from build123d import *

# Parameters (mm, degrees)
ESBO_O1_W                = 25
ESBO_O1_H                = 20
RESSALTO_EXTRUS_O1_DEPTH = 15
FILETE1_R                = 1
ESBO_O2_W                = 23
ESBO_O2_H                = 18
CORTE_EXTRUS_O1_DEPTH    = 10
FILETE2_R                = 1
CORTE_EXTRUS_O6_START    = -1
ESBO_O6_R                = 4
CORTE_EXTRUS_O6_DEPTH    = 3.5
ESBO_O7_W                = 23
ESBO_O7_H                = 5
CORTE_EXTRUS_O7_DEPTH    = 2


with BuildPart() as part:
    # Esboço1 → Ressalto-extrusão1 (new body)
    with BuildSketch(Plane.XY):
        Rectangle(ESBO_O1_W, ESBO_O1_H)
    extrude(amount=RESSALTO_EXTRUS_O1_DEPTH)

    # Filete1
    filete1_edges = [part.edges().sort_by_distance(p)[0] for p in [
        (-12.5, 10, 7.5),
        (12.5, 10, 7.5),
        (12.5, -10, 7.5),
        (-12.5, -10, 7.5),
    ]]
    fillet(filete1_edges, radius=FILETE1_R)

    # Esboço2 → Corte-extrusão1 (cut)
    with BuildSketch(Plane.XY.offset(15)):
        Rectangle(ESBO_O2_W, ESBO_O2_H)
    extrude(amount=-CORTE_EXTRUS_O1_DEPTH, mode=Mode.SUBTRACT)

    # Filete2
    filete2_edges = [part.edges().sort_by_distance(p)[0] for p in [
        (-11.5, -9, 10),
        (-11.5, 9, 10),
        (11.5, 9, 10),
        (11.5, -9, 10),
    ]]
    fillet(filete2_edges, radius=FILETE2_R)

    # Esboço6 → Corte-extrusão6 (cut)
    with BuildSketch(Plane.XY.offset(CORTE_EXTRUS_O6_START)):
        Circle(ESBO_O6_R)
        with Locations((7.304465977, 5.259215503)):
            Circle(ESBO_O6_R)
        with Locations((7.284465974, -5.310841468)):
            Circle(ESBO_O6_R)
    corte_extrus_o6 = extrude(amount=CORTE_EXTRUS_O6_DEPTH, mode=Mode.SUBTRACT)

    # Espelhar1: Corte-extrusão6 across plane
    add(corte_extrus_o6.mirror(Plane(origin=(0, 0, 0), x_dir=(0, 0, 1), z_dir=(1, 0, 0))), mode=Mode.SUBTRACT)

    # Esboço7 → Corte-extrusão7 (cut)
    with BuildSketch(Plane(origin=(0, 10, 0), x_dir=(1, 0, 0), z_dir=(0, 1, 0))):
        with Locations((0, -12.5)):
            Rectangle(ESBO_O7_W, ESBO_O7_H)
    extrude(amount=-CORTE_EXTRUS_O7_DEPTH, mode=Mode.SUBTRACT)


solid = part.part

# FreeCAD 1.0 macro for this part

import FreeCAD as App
import Part
import Sketcher

V = App.Vector
Q = App.Units.Quantity


def edges_at(feature, points):
    """Names of the edges that pass closest to the given points."""
    edges = feature.Shape.Edges
    near = lambda p: min(range(len(edges)), key=lambda i: edges[i].distToShape(Part.Vertex(*p))[0])
    return sorted({f"Edge{near(p) + 1}" for p in points})

doc = App.newDocument("Part")
body = doc.addObject("PartDesign::Body", "Body")

sketch1 = body.newObject("Sketcher::SketchObject", "Sketch")
sketch1.AttachmentSupport = (doc.getObject("XY_Plane"), [""])
sketch1.MapMode = "FlatFace"
sketch1.addGeometry(Part.LineSegment(V(-12, 10, 0), V(-12, -10, 0)), False)
sketch1.addGeometry(Part.LineSegment(V(-12, -10, 0), V(12, -10, 0)), False)
sketch1.addGeometry(Part.LineSegment(V(12, -10, 0), V(12, 10, 0)), False)
sketch1.addGeometry(Part.LineSegment(V(12, 10, 0), V(-12, 10, 0)), False)
sketch1.addConstraint(Sketcher.Constraint("Coincident", 0, 2, 1, 1))
sketch1.addConstraint(Sketcher.Constraint("Coincident", 1, 2, 2, 1))
sketch1.addConstraint(Sketcher.Constraint("Coincident", 2, 2, 3, 1))
sketch1.addConstraint(Sketcher.Constraint("Coincident", 3, 2, 0, 1))
sketch1.addConstraint(Sketcher.Constraint("Vertical", 0))
sketch1.addConstraint(Sketcher.Constraint("Horizontal", 1))
sketch1.addConstraint(Sketcher.Constraint("Vertical", 2))
sketch1.addConstraint(Sketcher.Constraint("Horizontal", 3))
sketch1.addConstraint(Sketcher.Constraint("Symmetric", 0, 2, 2, 2, -1, 1))
sketch1.addConstraint(Sketcher.Constraint("DistanceX", 1, 1, 1, 2, Q("25 mm")))
sketch1.addConstraint(Sketcher.Constraint("DistanceY", 0, 2, 0, 1, Q("20 mm")))
pad1 = body.newObject("PartDesign::Pad", "Pad")
pad1.Profile = sketch1
pad1.Length = 15
doc.recompute()

fillet = body.newObject("PartDesign::Fillet", "Fillet")
fillet.Base = (pad1, edges_at(pad1, [
    (-12.5, 10, 7.5),
    (12.5, 10, 7.5),
    (12.5, -10, 7.5),
    (-12.5, -10, 7.5),
]))
fillet.Radius = 1

sketch2 = body.newObject("Sketcher::SketchObject", "Sketch001")
sketch2.AttachmentSupport = (doc.getObject("XY_Plane"), [""])
sketch2.MapMode = "FlatFace"
sketch2.AttachmentOffset = App.Placement(V(0, 0, 15), App.Rotation())
sketch2.addGeometry(Part.LineSegment(V(-12, 9, 0), V(-12, -9, 0)), False)
sketch2.addGeometry(Part.LineSegment(V(-12, -9, 0), V(12, -9, 0)), False)
sketch2.addGeometry(Part.LineSegment(V(12, -9, 0), V(12, 9, 0)), False)
sketch2.addGeometry(Part.LineSegment(V(12, 9, 0), V(-12, 9, 0)), False)
sketch2.addConstraint(Sketcher.Constraint("Coincident", 0, 2, 1, 1))
sketch2.addConstraint(Sketcher.Constraint("Coincident", 1, 2, 2, 1))
sketch2.addConstraint(Sketcher.Constraint("Coincident", 2, 2, 3, 1))
sketch2.addConstraint(Sketcher.Constraint("Coincident", 3, 2, 0, 1))
sketch2.addConstraint(Sketcher.Constraint("Vertical", 0))
sketch2.addConstraint(Sketcher.Constraint("Horizontal", 1))
sketch2.addConstraint(Sketcher.Constraint("Vertical", 2))
sketch2.addConstraint(Sketcher.Constraint("Horizontal", 3))
sketch2.addConstraint(Sketcher.Constraint("Symmetric", 0, 2, 2, 2, -1, 1))
sketch2.addConstraint(Sketcher.Constraint("DistanceX", 1, 1, 1, 2, Q("23 mm")))
sketch2.addConstraint(Sketcher.Constraint("DistanceY", 0, 2, 0, 1, Q("18 mm")))
pocket1 = body.newObject("PartDesign::Pocket", "Pocket")
pocket1.Profile = sketch2
pocket1.Length = 10
doc.recompute()

fillet2 = body.newObject("PartDesign::Fillet", "Fillet001")
fillet2.Base = (pocket1, edges_at(pocket1, [
    (-11.5, -9, 10),
    (-11.5, 9, 10),
    (11.5, 9, 10),
    (11.5, -9, 10),
]))
fillet2.Radius = 1

sketch3 = body.newObject("Sketcher::SketchObject", "Sketch002")
sketch3.AttachmentSupport = (doc.getObject("XY_Plane"), [""])
sketch3.MapMode = "FlatFace"
sketch3.AttachmentOffset = App.Placement(V(0, 0, -1), App.Rotation())
sketch3.addGeometry(Part.Circle(V(0, 0, 0), V(0, 0, 1), 4), False)
sketch3.addGeometry(Part.Circle(V(7.3, 5.3, 0), V(0, 0, 1), 4), False)
sketch3.addGeometry(Part.Circle(V(7.3, -5.3, 0), V(0, 0, 1), 4), False)
sketch3.addConstraint(Sketcher.Constraint("Coincident", 0, 3, -1, 1))
sketch3.addConstraint(Sketcher.Constraint("Equal", 0, 1))
sketch3.addConstraint(Sketcher.Constraint("Equal", 1, 2))
sketch3.addConstraint(Sketcher.Constraint("Diameter", 0, Q("8 mm")))
sketch3.addConstraint(Sketcher.Constraint("DistanceX", 2, 3, 1, 3, Q("0.02 mm")))
sketch3.addConstraint(Sketcher.Constraint("DistanceY", 2, 3, -1, 1, Q("5.310841 mm")))
sketch3.addConstraint(Sketcher.Constraint("DistanceX", -1, 1, 1, 3, Q("7.304466 mm")))
sketch3.addConstraint(Sketcher.Constraint("DistanceY", -1, 1, 1, 3, Q("5.259216 mm")))
pocket2 = body.newObject("PartDesign::Pocket", "Pocket001")
pocket2.Profile = sketch3
pocket2.Length = 3.5
pocket2.Reversed = True
doc.recompute()

mirrored = body.newObject("PartDesign::Mirrored", "Mirrored")
mirrored.Originals = [pocket2]
mirrored.MirrorPlane = (doc.getObject("YZ_Plane"), [""])
body.Tip = mirrored

sketch4 = body.newObject("Sketcher::SketchObject", "Sketch003")
sketch4.AttachmentSupport = (doc.getObject("XZ_Plane"), [""])
sketch4.MapMode = "FlatFace"
sketch4.AttachmentOffset = App.Placement(V(0, 0, -10), App.Rotation())
sketch4.addGeometry(Part.LineSegment(V(-12, 10, 0), V(-12, 15, 0)), False)
sketch4.addGeometry(Part.LineSegment(V(-12, 15, 0), V(12, 15, 0)), False)
sketch4.addGeometry(Part.LineSegment(V(12, 15, 0), V(12, 10, 0)), False)
sketch4.addGeometry(Part.LineSegment(V(12, 10, 0), V(-12, 10, 0)), False)
sketch4.addConstraint(Sketcher.Constraint("Coincident", 0, 2, 1, 1))
sketch4.addConstraint(Sketcher.Constraint("Coincident", 1, 2, 2, 1))
sketch4.addConstraint(Sketcher.Constraint("Coincident", 2, 2, 3, 1))
sketch4.addConstraint(Sketcher.Constraint("Coincident", 3, 2, 0, 1))
sketch4.addConstraint(Sketcher.Constraint("Vertical", 0))
sketch4.addConstraint(Sketcher.Constraint("Horizontal", 1))
sketch4.addConstraint(Sketcher.Constraint("Vertical", 2))
sketch4.addConstraint(Sketcher.Constraint("Horizontal", 3))
sketch4.addConstraint(Sketcher.Constraint("DistanceX", 1, 1, 1, 2, Q("23 mm")))
sketch4.addConstraint(Sketcher.Constraint("DistanceY", 0, 1, 0, 2, Q("5 mm")))
sketch4.addConstraint(Sketcher.Constraint("DistanceY", -1, 1, 0, 2, Q("15 mm")))
sketch4.addConstraint(Sketcher.Constraint("DistanceX", 0, 2, -1, 1, Q("11.5 mm")))
pocket3 = body.newObject("PartDesign::Pocket", "Pocket002")
pocket3.Profile = sketch4
pocket3.Length = 2
pocket3.Reversed = True

doc.recompute()
